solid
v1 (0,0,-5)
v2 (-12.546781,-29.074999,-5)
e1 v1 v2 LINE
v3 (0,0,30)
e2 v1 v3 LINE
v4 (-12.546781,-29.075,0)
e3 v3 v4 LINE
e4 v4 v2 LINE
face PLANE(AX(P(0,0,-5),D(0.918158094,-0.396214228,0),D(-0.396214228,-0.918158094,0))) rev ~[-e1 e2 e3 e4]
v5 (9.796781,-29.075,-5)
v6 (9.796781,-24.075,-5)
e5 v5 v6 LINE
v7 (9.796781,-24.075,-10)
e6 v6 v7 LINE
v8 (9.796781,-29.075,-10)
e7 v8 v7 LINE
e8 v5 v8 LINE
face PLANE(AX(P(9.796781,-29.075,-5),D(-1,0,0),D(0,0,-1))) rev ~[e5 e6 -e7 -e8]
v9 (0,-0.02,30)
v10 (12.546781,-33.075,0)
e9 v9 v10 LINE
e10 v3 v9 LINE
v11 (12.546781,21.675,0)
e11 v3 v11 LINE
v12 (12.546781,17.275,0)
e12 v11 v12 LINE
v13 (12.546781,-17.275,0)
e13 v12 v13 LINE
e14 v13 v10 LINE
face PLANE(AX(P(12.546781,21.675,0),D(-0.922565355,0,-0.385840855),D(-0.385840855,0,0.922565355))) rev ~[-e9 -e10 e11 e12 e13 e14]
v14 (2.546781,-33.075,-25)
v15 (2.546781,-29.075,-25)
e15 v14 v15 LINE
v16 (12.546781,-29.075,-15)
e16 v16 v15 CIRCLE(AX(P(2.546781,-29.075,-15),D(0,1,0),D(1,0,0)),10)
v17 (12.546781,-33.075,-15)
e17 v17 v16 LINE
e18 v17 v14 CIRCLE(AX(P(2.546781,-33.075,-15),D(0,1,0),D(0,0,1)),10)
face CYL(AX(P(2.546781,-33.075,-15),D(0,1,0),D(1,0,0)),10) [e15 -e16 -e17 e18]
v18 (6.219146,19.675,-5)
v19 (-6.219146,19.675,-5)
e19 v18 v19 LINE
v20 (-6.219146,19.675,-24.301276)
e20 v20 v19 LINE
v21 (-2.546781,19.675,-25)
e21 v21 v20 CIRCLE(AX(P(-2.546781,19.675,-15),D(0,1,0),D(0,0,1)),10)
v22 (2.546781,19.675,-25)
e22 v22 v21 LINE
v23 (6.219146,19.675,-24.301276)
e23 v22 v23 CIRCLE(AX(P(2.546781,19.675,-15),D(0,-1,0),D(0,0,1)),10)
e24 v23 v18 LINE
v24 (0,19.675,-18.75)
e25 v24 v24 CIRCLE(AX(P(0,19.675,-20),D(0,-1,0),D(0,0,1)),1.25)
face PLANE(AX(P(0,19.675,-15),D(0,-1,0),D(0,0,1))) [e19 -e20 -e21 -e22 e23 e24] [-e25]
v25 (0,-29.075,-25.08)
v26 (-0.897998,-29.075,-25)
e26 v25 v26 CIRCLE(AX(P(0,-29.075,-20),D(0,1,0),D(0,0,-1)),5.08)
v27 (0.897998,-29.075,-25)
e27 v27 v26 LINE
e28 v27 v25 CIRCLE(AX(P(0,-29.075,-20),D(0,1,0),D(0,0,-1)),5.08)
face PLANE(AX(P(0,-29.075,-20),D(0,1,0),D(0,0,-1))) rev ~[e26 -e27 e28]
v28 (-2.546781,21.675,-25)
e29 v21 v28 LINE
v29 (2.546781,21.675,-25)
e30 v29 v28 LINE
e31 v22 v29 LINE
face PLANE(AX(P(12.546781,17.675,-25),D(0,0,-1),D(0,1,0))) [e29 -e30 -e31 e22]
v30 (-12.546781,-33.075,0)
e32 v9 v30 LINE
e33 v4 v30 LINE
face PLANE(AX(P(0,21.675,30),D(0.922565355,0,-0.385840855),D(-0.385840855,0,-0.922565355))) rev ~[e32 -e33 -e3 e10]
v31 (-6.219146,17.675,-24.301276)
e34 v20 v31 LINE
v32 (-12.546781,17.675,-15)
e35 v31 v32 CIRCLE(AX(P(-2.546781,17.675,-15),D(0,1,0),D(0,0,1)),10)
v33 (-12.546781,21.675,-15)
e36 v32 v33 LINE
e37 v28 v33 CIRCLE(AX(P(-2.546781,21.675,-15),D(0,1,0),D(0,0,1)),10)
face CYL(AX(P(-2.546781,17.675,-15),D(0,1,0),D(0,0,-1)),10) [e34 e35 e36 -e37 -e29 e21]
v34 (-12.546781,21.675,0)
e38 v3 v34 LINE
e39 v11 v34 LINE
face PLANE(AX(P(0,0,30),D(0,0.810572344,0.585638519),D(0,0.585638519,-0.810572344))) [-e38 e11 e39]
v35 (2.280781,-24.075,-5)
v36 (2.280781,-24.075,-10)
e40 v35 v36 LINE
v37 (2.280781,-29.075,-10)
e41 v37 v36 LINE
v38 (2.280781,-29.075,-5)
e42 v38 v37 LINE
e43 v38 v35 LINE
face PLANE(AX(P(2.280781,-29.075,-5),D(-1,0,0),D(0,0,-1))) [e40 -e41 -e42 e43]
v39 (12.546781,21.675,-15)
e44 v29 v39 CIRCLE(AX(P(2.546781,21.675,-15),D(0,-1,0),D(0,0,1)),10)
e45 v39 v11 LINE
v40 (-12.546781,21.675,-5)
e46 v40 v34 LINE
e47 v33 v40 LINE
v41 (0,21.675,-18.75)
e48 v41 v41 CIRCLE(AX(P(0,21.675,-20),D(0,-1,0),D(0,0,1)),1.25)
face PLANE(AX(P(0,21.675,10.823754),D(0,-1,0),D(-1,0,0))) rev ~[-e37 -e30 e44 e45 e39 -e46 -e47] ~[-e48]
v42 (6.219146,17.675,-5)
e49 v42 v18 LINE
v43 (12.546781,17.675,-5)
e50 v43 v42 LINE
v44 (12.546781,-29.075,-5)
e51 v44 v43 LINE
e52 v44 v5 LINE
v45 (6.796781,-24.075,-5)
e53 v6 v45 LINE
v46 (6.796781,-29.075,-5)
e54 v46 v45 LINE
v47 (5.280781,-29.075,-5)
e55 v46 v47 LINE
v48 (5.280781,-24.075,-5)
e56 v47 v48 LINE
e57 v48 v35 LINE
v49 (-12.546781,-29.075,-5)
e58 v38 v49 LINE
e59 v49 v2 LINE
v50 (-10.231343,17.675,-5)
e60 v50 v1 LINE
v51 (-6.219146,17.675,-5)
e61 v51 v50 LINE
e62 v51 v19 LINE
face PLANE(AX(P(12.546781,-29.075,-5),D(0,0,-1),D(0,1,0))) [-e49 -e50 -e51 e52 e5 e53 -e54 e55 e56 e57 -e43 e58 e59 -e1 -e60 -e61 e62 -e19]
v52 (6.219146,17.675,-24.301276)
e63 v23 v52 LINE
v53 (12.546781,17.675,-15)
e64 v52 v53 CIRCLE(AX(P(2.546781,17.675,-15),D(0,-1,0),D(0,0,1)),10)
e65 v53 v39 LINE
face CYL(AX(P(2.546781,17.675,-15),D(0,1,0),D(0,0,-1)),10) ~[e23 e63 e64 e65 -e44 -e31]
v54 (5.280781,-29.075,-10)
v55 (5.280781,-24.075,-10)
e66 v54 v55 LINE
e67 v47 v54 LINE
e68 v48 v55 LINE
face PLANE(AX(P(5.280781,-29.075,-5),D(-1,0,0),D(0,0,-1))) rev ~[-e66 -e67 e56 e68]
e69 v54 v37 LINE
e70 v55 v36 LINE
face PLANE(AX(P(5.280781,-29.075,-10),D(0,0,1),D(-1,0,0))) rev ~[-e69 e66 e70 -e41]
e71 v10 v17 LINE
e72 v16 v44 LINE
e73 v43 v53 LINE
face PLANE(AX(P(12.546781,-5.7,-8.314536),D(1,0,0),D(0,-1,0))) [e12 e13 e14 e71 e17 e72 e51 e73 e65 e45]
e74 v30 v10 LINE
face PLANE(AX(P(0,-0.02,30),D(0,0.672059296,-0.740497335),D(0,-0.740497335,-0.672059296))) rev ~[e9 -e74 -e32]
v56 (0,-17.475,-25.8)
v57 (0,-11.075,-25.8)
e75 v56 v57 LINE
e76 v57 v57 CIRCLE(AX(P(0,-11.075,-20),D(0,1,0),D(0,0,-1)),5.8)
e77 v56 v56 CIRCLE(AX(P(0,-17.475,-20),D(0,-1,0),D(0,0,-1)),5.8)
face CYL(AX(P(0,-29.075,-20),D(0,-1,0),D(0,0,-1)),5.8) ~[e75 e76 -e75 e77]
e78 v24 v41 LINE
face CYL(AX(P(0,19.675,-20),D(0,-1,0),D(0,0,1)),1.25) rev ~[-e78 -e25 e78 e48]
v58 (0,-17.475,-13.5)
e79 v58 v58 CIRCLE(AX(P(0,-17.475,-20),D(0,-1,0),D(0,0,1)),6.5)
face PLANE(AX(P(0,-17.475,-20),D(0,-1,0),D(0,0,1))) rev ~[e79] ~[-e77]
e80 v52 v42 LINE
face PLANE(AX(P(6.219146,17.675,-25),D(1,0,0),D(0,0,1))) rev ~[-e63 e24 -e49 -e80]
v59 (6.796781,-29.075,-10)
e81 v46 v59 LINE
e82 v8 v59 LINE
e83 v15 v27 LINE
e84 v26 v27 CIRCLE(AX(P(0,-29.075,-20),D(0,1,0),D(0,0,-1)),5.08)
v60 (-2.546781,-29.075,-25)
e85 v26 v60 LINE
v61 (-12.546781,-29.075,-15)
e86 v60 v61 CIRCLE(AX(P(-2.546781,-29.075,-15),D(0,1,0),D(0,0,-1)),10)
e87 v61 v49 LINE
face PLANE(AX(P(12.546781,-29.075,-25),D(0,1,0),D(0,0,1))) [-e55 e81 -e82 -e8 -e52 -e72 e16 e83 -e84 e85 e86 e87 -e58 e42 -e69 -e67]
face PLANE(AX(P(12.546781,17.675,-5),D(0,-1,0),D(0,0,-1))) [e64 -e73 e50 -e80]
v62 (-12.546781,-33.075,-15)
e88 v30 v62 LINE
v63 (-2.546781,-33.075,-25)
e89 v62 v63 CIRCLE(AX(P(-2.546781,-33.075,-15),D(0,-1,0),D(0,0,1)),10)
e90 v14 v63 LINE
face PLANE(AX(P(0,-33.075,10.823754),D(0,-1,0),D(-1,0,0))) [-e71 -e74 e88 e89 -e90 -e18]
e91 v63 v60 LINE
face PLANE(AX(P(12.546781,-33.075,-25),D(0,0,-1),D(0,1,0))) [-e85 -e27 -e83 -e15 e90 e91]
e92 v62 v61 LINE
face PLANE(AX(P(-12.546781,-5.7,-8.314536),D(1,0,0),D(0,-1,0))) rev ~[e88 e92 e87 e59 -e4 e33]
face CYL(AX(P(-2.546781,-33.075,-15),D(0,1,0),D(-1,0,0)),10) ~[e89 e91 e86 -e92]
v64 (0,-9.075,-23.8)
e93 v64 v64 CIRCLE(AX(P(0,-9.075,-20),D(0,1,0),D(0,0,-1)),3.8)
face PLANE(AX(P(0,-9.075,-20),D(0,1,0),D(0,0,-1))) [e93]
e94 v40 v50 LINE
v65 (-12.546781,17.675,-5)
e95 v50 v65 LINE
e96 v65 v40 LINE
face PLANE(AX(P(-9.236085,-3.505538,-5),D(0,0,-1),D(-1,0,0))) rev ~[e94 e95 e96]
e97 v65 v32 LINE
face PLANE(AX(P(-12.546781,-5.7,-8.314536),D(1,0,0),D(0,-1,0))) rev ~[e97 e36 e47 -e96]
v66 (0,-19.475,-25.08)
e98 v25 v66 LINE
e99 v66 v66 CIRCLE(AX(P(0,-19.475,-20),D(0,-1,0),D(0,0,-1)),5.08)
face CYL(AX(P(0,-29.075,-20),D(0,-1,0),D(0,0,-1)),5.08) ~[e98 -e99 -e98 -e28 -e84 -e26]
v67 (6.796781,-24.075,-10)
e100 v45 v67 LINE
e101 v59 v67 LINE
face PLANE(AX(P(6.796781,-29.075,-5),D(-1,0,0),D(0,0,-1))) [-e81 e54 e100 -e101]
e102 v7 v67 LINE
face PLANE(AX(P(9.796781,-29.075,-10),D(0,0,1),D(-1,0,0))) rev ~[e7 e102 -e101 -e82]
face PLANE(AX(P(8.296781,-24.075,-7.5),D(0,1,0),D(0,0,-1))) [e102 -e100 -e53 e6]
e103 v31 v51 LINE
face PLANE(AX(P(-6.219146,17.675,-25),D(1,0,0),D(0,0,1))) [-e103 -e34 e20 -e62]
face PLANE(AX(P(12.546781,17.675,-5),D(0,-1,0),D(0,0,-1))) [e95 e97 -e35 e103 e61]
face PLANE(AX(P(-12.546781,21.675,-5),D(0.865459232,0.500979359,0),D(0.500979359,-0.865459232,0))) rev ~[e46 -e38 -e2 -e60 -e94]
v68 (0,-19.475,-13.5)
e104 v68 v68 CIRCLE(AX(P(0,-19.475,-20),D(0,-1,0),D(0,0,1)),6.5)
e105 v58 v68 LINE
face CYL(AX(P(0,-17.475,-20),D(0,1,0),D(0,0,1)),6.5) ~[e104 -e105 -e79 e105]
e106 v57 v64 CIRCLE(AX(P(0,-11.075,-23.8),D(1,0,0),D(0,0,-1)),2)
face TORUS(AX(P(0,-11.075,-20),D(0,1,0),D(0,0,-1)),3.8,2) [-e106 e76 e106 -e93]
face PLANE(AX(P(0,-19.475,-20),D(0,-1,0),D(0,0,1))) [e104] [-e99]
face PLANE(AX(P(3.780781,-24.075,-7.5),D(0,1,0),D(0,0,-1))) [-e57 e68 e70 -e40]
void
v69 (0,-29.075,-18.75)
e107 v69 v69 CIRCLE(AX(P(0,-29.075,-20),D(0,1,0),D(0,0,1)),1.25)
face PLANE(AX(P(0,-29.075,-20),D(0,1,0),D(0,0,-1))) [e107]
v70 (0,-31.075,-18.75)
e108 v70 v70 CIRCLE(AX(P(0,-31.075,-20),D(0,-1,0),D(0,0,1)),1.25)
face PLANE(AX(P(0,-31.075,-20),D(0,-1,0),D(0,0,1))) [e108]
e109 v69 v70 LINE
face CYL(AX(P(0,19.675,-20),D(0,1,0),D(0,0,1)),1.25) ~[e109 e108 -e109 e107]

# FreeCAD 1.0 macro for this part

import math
import FreeCAD as App
import Part
import Sketcher
from FreeCAD import Vector


def edges_at(feature, points):
    """Names of the edges that pass closest to the given points."""
    edges = feature.Shape.Edges
    near = lambda p: min(range(len(edges)), key=lambda i: edges[i].distToShape(Part.Vertex(*p))[0])
    return sorted({f"Edge{near(p) + 1}" for p in points})


def add_polygon(sketch, points):
    """Adds a closed chain of lines whose ends are joined by coincident constraints."""
    first, n = sketch.GeometryCount, len(points)
    for a, b in zip(points, points[1:] + points[:1]):
        sketch.addGeometry(Part.LineSegment(App.Vector(*a, 0), App.Vector(*b, 0)), False)
    for i in range(n):
        sketch.addConstraint(Sketcher.Constraint("Coincident", first + i, 2, first + (i + 1) % n, 1))

doc = App.newDocument("Part")
body = doc.addObject("PartDesign::Body", "Body")

# Sketch on XY plane
sketch1 = body.newObject("Sketcher::SketchObject", "Sketch")
sketch1.AttachmentSupport = (doc.getObject("XY_Plane"), [""])
sketch1.MapMode = "FlatFace"
add_polygon(sketch1, [(-6, 7), (-6, -10), (6, -10), (6, 7)])  # lines 0-3
sketch1.addConstraint([
    Sketcher.Constraint("Vertical", 0),
    Sketcher.Constraint("Horizontal", 1),
    Sketcher.Constraint("Vertical", 2),
    Sketcher.Constraint("Horizontal", 3),
    Sketcher.Constraint("DistanceX", 1, 1, 1, 2, 12.46),
    Sketcher.Constraint("DistanceY", 0, 2, 0, 1, 17.25),
    Sketcher.Constraint("DistanceX", 0, 2, -1, 1, 6.23),
    Sketcher.Constraint("DistanceY", 0, 2, -1, 1, 9.975),
])
pad1 = body.newObject("PartDesign::Pad", "Pad")
pad1.Profile = sketch1
pad1.Length = 6
body2 = doc.addObject("PartDesign::Body", "Body001")

# Sketch on XZ plane
sketch2 = body2.newObject("Sketcher::SketchObject", "Sketch001")
sketch2.AttachmentSupport = (doc.getObject("XZ_Plane001"), [""])
sketch2.MapMode = "FlatFace"
sketch2.AttachmentOffset = App.Placement(Vector(0, 0, 9.975), App.Rotation())
sketch2.addGeometry([
    Part.Circle(Vector(0, 24, 0), Vector(0, 0, 1), 13),
    Part.Circle(Vector(0, 24, 0), Vector(0, 0, 1), 11),
], False)
sketch2.addConstraint([
    Sketcher.Constraint("Coincident", 1, 3, 0, 3),
    Sketcher.Constraint("PointOnObject", 0, 3, -2),
    Sketcher.Constraint("Diameter", 1, 22.3),
    Sketcher.Constraint("DistanceY", -1, 1, 0, 3, 23.55),
    Sketcher.Constraint("Diameter", 0, 25.093562),
])
pad2 = body2.newObject("PartDesign::Pad", "Pad001")
pad2.Profile = sketch2
pad2.Type = "TwoLengths"
pad2.Length = 7.3
pad2.Length2 = 17.25
body.AllowCompound = True
doc.recompute()

boolean = body.newObject("PartDesign::Boolean", "Boolean")
boolean.Type = "Fuse"
boolean.addObjects([body2])

# Sketch on XZ plane
sketch3 = body.newObject("Sketcher::SketchObject", "Sketch002")
sketch3.AttachmentSupport = (doc.getObject("XZ_Plane"), [""])
sketch3.MapMode = "FlatFace"
sketch3.AttachmentOffset = App.Placement(Vector(0, 0, -7.275), App.Rotation())
sketch3.addGeometry([
    Part.LineSegment(Vector(13, 24, 0), Vector(13, 0, 0)),  # 0
    Part.LineSegment(Vector(13, 0, 0), Vector(6, 0, 0)),  # 1
    Part.LineSegment(Vector(6, 0, 0), Vector(6, 30, 0)),  # 2
    Part.LineSegment(Vector(6, 30, 0), Vector(-6, 30, 0)),  # 3
    Part.LineSegment(Vector(-6, 30, 0), Vector(-6, 0, 0)),  # 4
    Part.LineSegment(Vector(-6, 0, 0), Vector(-13, 0, 0)),  # 5
    Part.LineSegment(Vector(-13, 0, 0), Vector(-13, 24, 0)),  # 6
    Part.ArcOfCircle(Part.Circle(Vector(0, 24, 0), Vector(0, 0, 1), 13), math.radians(0), math.radians(180)),  # 7
], False)
sketch3.addConstraint([
    Sketcher.Constraint("Coincident", 0, 2, 1, 1),
    Sketcher.Constraint("Coincident", 1, 2, 2, 1),
    Sketcher.Constraint("Coincident", 2, 2, 3, 1),
    Sketcher.Constraint("Coincident", 3, 2, 4, 1),
    Sketcher.Constraint("Coincident", 4, 2, 5, 1),
    Sketcher.Constraint("Coincident", 5, 2, 6, 1),
    Sketcher.Constraint("Tangent", 6, 2, 7, 2),
    Sketcher.Constraint("Tangent", 7, 1, 0, 1),
    Sketcher.Constraint("Vertical", 0),
    Sketcher.Constraint("Horizontal", 1),
    Sketcher.Constraint("Vertical", 2),
    Sketcher.Constraint("Horizontal", 3),
    Sketcher.Constraint("Vertical", 4),
    Sketcher.Constraint("Horizontal", 5),
    Sketcher.Constraint("Vertical", 6),
    Sketcher.Constraint("Symmetric", 1, 2, 4, 2, -1, 1),
    Sketcher.Constraint("Symmetric", 0, 2, 5, 2, -2),
    Sketcher.Constraint("DistanceY", 2, 1, 2, 2, 29.7),
    Sketcher.Constraint("DistanceX", 3, 2, 3, 1, 12.46),
    Sketcher.Constraint("DistanceY", 0, 2, 0, 1, 23.55),
    Sketcher.Constraint("Radius", 7, 12.546781),
])
pad3 = body.newObject("PartDesign::Pad", "Pad002")
pad3.Profile = sketch3
pad3.Length = 17.25

# Sketch on XZ plane
sketch4 = body.newObject("Sketcher::SketchObject", "Sketch003")
sketch4.AttachmentSupport = (doc.getObject("XZ_Plane"), [""])
sketch4.MapMode = "FlatFace"
sketch4.AttachmentOffset = App.Placement(Vector(0, 0, -7.275), App.Rotation())
sketch4.addGeometry([
    Part.Circle(Vector(0, 3.6, 0), Vector(0, 0, 1), 0.5),
    Part.Circle(Vector(0, 32.1, 0), Vector(0, 0, 1), 0.5),
], False)
sketch4.addConstraint([
    Sketcher.Constraint("Equal", 0, 1),
    Sketcher.Constraint("PointOnObject", 0, 3, -2),
    Sketcher.Constraint("PointOnObject", 1, 3, -2),
    Sketcher.Constraint("Diameter", 0, 1.0),
    Sketcher.Constraint("DistanceY", -1, 1, 0, 3, 3.6),
    Sketcher.Constraint("DistanceY", -1, 1, 1, 3, 32.1),
])
pocket1 = body.newObject("PartDesign::Pocket", "Pocket")
pocket1.Profile = sketch4
pocket1.Length = 15
pocket1.Reversed = True
doc.recompute()

chamfer = body.newObject("PartDesign::Chamfer", "Chamfer")
chamfer.Base = (pocket1, edges_at(pocket1, [(-0.5, 7.275, 3.6), (-0.5, 7.275, 32.1)]))
chamfer.ChamferType = "Two distances"
chamfer.Size = 0.5
chamfer.Size2 = 0.866025

# Sketch on XZ plane
sketch5 = body.newObject("Sketcher::SketchObject", "Sketch004")
sketch5.AttachmentSupport = (doc.getObject("XZ_Plane"), [""])
sketch5.MapMode = "FlatFace"
sketch5.AttachmentOffset = App.Placement(Vector(0, 0, -7.275), App.Rotation())
add_polygon(sketch5, [(-6, 6), (-6, 30), (6, 30), (6, 6)])  # lines 0-3
sketch5.addConstraint([
    Sketcher.Constraint("Vertical", 0),
    Sketcher.Constraint("Horizontal", 1),
    Sketcher.Constraint("Vertical", 2),
    Sketcher.Constraint("Horizontal", 3),
    Sketcher.Constraint("DistanceY", 0, 1, 0, 2, 23.7),
    Sketcher.Constraint("DistanceY", -1, 1, 2, 2, 6.0),
    Sketcher.Constraint("DistanceX", 1, 1, 1, 2, 12.46),
    Sketcher.Constraint("DistanceX", 0, 2, -1, 1, 6.23),
])
pocket2 = body.newObject("PartDesign::Pocket", "Pocket001")
pocket2.Profile = sketch5
pocket2.Length = 17.25
pocket2.Reversed = True

# Sketch on XY plane
sketch6 = body.newObject("Sketcher::SketchObject", "Sketch005")
sketch6.AttachmentSupport = (doc.getObject("XY_Plane"), [""])
sketch6.MapMode = "FlatFace"
sketch6.AttachmentOffset = App.Placement(Vector(0, 0, 36.096781), App.Rotation())
add_polygon(sketch6, [(-2.5, -7), (-2.5, -10), (2.5, -10), (2.5, -7)])  # lines 0-3
sketch6.addConstraint([
    Sketcher.Constraint("Vertical", 0),
    Sketcher.Constraint("Horizontal", 1),
    Sketcher.Constraint("Vertical", 2),
    Sketcher.Constraint("Horizontal", 3),
    Sketcher.Constraint("DistanceX", 1, 1, 1, 2, 5.0),
    Sketcher.Constraint("DistanceY", 0, 2, 0, 1, 3.0),
    Sketcher.Constraint("DistanceX", 0, 2, -1, 1, 2.5),
    Sketcher.Constraint("DistanceY", 0, 2, -1, 1, 9.975),
])
pocket3 = body.newObject("PartDesign::Pocket", "Pocket002")
pocket3.Profile = sketch6
pocket3.Type = "UpToFirst"

# Sketch on XZ plane
sketch7 = body.newObject("Sketcher::SketchObject", "Sketch006")
sketch7.AttachmentSupport = (doc.getObject("XZ_Plane"), [""])
sketch7.MapMode = "FlatFace"
sketch7.AttachmentOffset = App.Placement(Vector(0, 0, 17.275), App.Rotation())
sketch7.addGeometry([
    Part.LineSegment(Vector(-13, 24, 0), Vector(-13, 0, 0)),
    Part.LineSegment(Vector(-13, 0, 0), Vector(13, 0, 0)),
    Part.LineSegment(Vector(13, 0, 0), Vector(13, 24, 0)),
    Part.ArcOfCircle(Part.Circle(Vector(0, 24, 0), Vector(0, 0, 1), 13), math.radians(180), math.radians(360)),
], False)
sketch7.addConstraint([
    Sketcher.Constraint("Coincident", 0, 2, 1, 1),
    Sketcher.Constraint("Coincident", 1, 2, 2, 1),
    Sketcher.Constraint("Tangent", 2, 2, 3, 2),
    Sketcher.Constraint("Tangent", 3, 1, 0, 1),
    Sketcher.Constraint("Vertical", 0),
    Sketcher.Constraint("Horizontal", 1),
    Sketcher.Constraint("Vertical", 2),
    Sketcher.Constraint("Symmetric", 0, 2, 1, 2, -1, 1),
    Sketcher.Constraint("DistanceY", 0, 2, 0, 1, 23.55),
    Sketcher.Constraint("Radius", 3, 12.546781),
])
pad4 = body.newObject("PartDesign::Pad", "Pad003")
pad4.Profile = sketch7
pad4.Length = 7.3
pad4.Reversed = True

# Sketch on XZ plane
sketch8 = body.newObject("Sketcher::SketchObject", "Sketch007")
sketch8.AttachmentSupport = (doc.getObject("XZ_Plane"), [""])
sketch8.MapMode = "FlatFace"
sketch8.AttachmentOffset = App.Placement(Vector(0, 0, -7.275), App.Rotation())
sketch8.addGeometry([
    Part.LineSegment(Vector(12.5, 0, 0), Vector(-12.5, 0, 0)),  # 0
    Part.LineSegment(Vector(-12.5, 0, 0), Vector(-12.5, 23.6, 0)),  # 1
    Part.ArcOfCircle(Part.Circle(Vector(0, 23.6, 0), Vector(0, 0, 1), 12.5), math.radians(0), math.radians(180)),  # 2
    Part.LineSegment(Vector(12.5, 23.6, 0), Vector(12.5, 0, 0)),  # 3
    Part.LineSegment(Vector(-6.2, 0.8, 0), Vector(6.2, 0.8, 0)),  # 4
    Part.LineSegment(Vector(6.2, 0.8, 0), Vector(6.2, 33.5, 0)),  # 5
    Part.ArcOfCircle(Part.Circle(Vector(5.2, 33.5, 0), Vector(0, 0, 1), 1), math.radians(0), math.radians(90)),  # 6
    Part.LineSegment(Vector(5.2, 34.5, 0), Vector(-5.2, 34.5, 0)),  # 7
    Part.ArcOfCircle(Part.Circle(Vector(-5.2, 33.5, 0), Vector(0, 0, 1), 1), math.radians(90), math.radians(180)),  # 8
    Part.LineSegment(Vector(-6.2, 33.5, 0), Vector(-6.2, 0.8, 0)),  # 9
], False)
sketch8.addConstraint([
    Sketcher.Constraint("Coincident", 0, 2, 1, 1),
    Sketcher.Constraint("Tangent", 1, 2, 2, 2),
    Sketcher.Constraint("Tangent", 2, 1, 3, 1),
    Sketcher.Constraint("Coincident", 3, 2, 0, 1),
    Sketcher.Constraint("Coincident", 4, 2, 5, 1),
    Sketcher.Constraint("Tangent", 5, 2, 6, 1),
    Sketcher.Constraint("Tangent", 6, 2, 7, 1),
    Sketcher.Constraint("Tangent", 7, 2, 8, 1),
    Sketcher.Constraint("Tangent", 8, 2, 9, 1),
    Sketcher.Constraint("Coincident", 9, 2, 4, 1),
    Sketcher.Constraint("Horizontal", 0),
    Sketcher.Constraint("Vertical", 1),
    Sketcher.Constraint("Vertical", 3),
    Sketcher.Constraint("Horizontal", 4),
    Sketcher.Constraint("Vertical", 5),
    Sketcher.Constraint("Horizontal", 7),
    Sketcher.Constraint("Vertical", 9),
    Sketcher.Constraint("Equal", 6, 8),
    Sketcher.Constraint("Symmetric", 0, 2, 3, 2, -1, 1),
    Sketcher.Constraint("Radius", 6, 1.0),
    Sketcher.Constraint("DistanceY", 5, 1, 5, 2, 32.7),
    Sketcher.Constraint("DistanceX", 4, 1, 4, 2, 12.46),
    Sketcher.Constraint("DistanceY", 1, 1, 1, 2, 23.55),
    Sketcher.Constraint("DistanceY", -1, 1, 6, 3, 33.5),
    Sketcher.Constraint("DistanceX", -1, 1, 6, 3, 5.23),
    Sketcher.Constraint("Radius", 2, 12.546781),
])
pad5 = body.newObject("PartDesign::Pad", "Pad004")
pad5.Profile = sketch8
pad5.Length = 10
pad5.Reversed = True

# Sketch on XZ plane
sketch9 = body.newObject("Sketcher::SketchObject", "Sketch008")
sketch9.AttachmentSupport = (doc.getObject("XZ_Plane"), [""])
sketch9.MapMode = "FlatFace"
sketch9.AttachmentOffset = App.Placement(Vector(0, 0, 17.275), App.Rotation())
sketch9.addGeometry([
    Part.Circle(Vector(0, 24, 0), Vector(0, 0, 1), 11),
    Part.Circle(Vector(0, 24, 0), Vector(0, 0, 1), 7),
], False)
sketch9.addConstraint([
    Sketcher.Constraint("Coincident", 1, 3, 0, 3),
    Sketcher.Constraint("PointOnObject", 0, 3, -2),
    Sketcher.Constraint("Diameter", 0, 22.3),
    Sketcher.Constraint("Diameter", 1, 14.3),
    Sketcher.Constraint("DistanceY", -1, 1, 0, 3, 23.55),
])
pad6 = body.newObject("PartDesign::Pad", "Pad005")
pad6.Profile = sketch9
pad6.Length = 7.3
pad6.Reversed = True

# Sketch on XZ plane
sketch10 = body.newObject("Sketcher::SketchObject", "Sketch009")
sketch10.AttachmentSupport = (doc.getObject("XZ_Plane"), [""])
sketch10.MapMode = "FlatFace"
sketch10.AttachmentOffset = App.Placement(Vector(0, 0, 17.275), App.Rotation())
sketch10.addGeometry([
    Part.Circle(Vector(0, 24, 0), Vector(0, 0, 1), 10),
    Part.Circle(Vector(0, 24, 0), Vector(0, 0, 1), 7),
], False)
sketch10.addConstraint([
    Sketcher.Constraint("Coincident", 1, 3, 0, 3),
    Sketcher.Constraint("PointOnObject", 0, 3, -2),
    Sketcher.Constraint("Diameter", 0, 20.3),
    Sketcher.Constraint("Diameter", 1, 14.3),
    Sketcher.Constraint("DistanceY", -1, 1, 0, 3, 23.55),
])
pocket4 = body.newObject("PartDesign::Pocket", "Pocket003")
pocket4.Profile = sketch10
pocket4.Length = 1.3

# Sketch on YZ plane
sketch11 = body.newObject("Sketcher::SketchObject", "Sketch010")
sketch11.AttachmentSupport = (doc.getObject("YZ_Plane"), [""])
sketch11.MapMode = "FlatFace"
sketch11.AttachmentOffset = App.Placement(Vector(0, 0, 12.546781), App.Rotation())
add_polygon(sketch11, [(21.7, 0), (21.7, -25), (17.7, -25), (17.7, -5), (-29.1, -5), (-29.1, -25), (-33.1, -25), (-33.1, 0)])  # lines 0-7
sketch11.addConstraint([
    Sketcher.Constraint("Vertical", 0),
    Sketcher.Constraint("Horizontal", 1),
    Sketcher.Constraint("Vertical", 2),
    Sketcher.Constraint("Horizontal", 3),
    Sketcher.Constraint("Vertical", 4),
    Sketcher.Constraint("Horizontal", 5),
    Sketcher.Constraint("Vertical", 6),
    Sketcher.Constraint("Horizontal", 7),
    Sketcher.Constraint("PointOnObject", 6, 2, -1),
    Sketcher.Constraint("Horizontal", 1, 2, 4, 2),
    Sketcher.Constraint("Equal", 1, 5),
    Sketcher.Constraint("DistanceX", 1, 2, 1, 1, 4.0),
    Sketcher.Constraint("DistanceY", 0, 2, 0, 1, 25.0),
    Sketcher.Constraint("DistanceY", 2, 1, 2, 2, 20.0),
    Sketcher.Constraint("DistanceX", 3, 2, 3, 1, 46.75),
    Sketcher.Constraint("DistanceX", -1, 1, 0, 2, 21.675),
])
pad7 = body.newObject("PartDesign::Pad", "Pad006")
pad7.Profile = sketch11
pad7.Length = 25.093562
pad7.Reversed = True

# Sketch on XZ plane
sketch12 = body.newObject("Sketcher::SketchObject", "Sketch011")
sketch12.AttachmentSupport = (doc.getObject("XZ_Plane"), [""])
sketch12.MapMode = "FlatFace"
sketch12.AttachmentOffset = App.Placement(Vector(0, 0, -17.675), App.Rotation())
add_polygon(sketch12, [(-6, -25), (6, -25), (6, -5), (-6, -5)])  # lines 0-3
sketch12.addConstraint([
    Sketcher.Constraint("Horizontal", 0),
    Sketcher.Constraint("Vertical", 1),
    Sketcher.Constraint("Horizontal", 2),
    Sketcher.Constraint("Vertical", 3),
    Sketcher.Constraint("DistanceY", 1, 1, 1, 2, 20.0),
    Sketcher.Constraint("DistanceY", 0, 2, -1, 1, 25.0),
    Sketcher.Constraint("DistanceX", 0, 1, 0, 2, 12.438293),
    Sketcher.Constraint("DistanceX", -1, 1, 0, 2, 6.219146),
])
pocket5 = body.newObject("PartDesign::Pocket", "Pocket004")
pocket5.Profile = sketch12
pocket5.Length = 2

# Sketch on XZ plane
sketch13 = body.newObject("Sketcher::SketchObject", "Sketch012")
sketch13.AttachmentSupport = (doc.getObject("XZ_Plane"), [""])
sketch13.MapMode = "FlatFace"
sketch13.AttachmentOffset = App.Placement(Vector(0, 0, -19.675), App.Rotation())
sketch13.addGeometry(Part.Circle(Vector(0, -20, 0), Vector(0, 0, 1), 1.2), False)
sketch13.addConstraint([
    Sketcher.Constraint("PointOnObject", 0, 3, -2),
    Sketcher.Constraint("Diameter", 0, 2.5),
    Sketcher.Constraint("DistanceY", 0, 3, -1, 1, 20.0),
])
pocket6 = body.newObject("PartDesign::Pocket", "Pocket005")
pocket6.Profile = sketch13
pocket6.Type = "ThroughAll"
pocket6.Midplane = True
doc.recompute()

fillet = body.newObject("PartDesign::Fillet", "Fillet")
fillet.Base = (pocket6, edges_at(pocket6, [
    (-12.547, 19.675, -25),
    (12.547, 19.675, -25),
    (12.547, -31.075, -25),
    (-12.547, -31.075, -25),
]))
fillet.Radius = 10

# Sketch on XZ plane
sketch14 = body.newObject("Sketcher::SketchObject", "Sketch013")
sketch14.AttachmentSupport = (doc.getObject("XZ_Plane"), [""])
sketch14.MapMode = "FlatFace"
sketch14.AttachmentOffset = App.Placement(Vector(0, 0, 29.075), App.Rotation())
sketch14.addGeometry(Part.Circle(Vector(0, -20, 0), Vector(0, 0, 1), 6), False)
sketch14.addConstraint([
    Sketcher.Constraint("PointOnObject", 0, 3, -2),
    Sketcher.Constraint("Diameter", 0, 11.6),
    Sketcher.Constraint("DistanceY", 0, 3, -1, 1, 20.0),
])
pad8 = body.newObject("PartDesign::Pad", "Pad007")
pad8.Profile = sketch14
pad8.Length = 20
pad8.Reversed = True
doc.recompute()

fillet2 = body.newObject("PartDesign::Fillet", "Fillet001")
fillet2.Base = (pad8, edges_at(pad8, [(0, -9.075, -14.2)]))
fillet2.Radius = 2

# Sketch on XZ plane
sketch15 = body.newObject("Sketcher::SketchObject", "Sketch014")
sketch15.AttachmentSupport = (doc.getObject("XZ_Plane"), [""])
sketch15.MapMode = "FlatFace"
sketch15.AttachmentOffset = App.Placement(Vector(0, 0, 29.075), App.Rotation())
sketch15.addGeometry([
    Part.Circle(Vector(0, -20, 0), Vector(0, 0, 1), 6),
    Part.Circle(Vector(0, -20, 0), Vector(0, 0, 1), 5),
], False)
sketch15.addConstraint([
    Sketcher.Constraint("Coincident", 1, 3, 0, 3),
    Sketcher.Constraint("PointOnObject", 0, 3, -2),
    Sketcher.Constraint("Diameter", 1, 10.16),
    Sketcher.Constraint("DistanceY", 0, 3, -1, 1, 20.0),
    Sketcher.Constraint("Diameter", 0, 11.861708),
])
pocket7 = body.newObject("PartDesign::Pocket", "Pocket006")
pocket7.Profile = sketch15
pocket7.Length = 11.6

# Sketch on XZ plane
sketch16 = body.newObject("Sketcher::SketchObject", "Sketch015")
sketch16.AttachmentSupport = (doc.getObject("XZ_Plane"), [""])
sketch16.MapMode = "FlatFace"
sketch16.AttachmentOffset = App.Placement(Vector(0, 0, 17.475), App.Rotation())
sketch16.addGeometry(Part.Circle(Vector(0, -20, 0), Vector(0, 0, 1), 6), False)
sketch16.addConstraint([
    Sketcher.Constraint("PointOnObject", 0, 3, -2),
    Sketcher.Constraint("Diameter", 0, 13.0),
    Sketcher.Constraint("DistanceY", 0, 3, -1, 1, 20.0),
])
pad9 = body.newObject("PartDesign::Pad", "Pad008")
pad9.Profile = sketch16
pad9.Length = 2

# Sketch on XZ plane
sketch17 = body.newObject("Sketcher::SketchObject", "Sketch016")
sketch17.AttachmentSupport = (doc.getObject("XZ_Plane"), [""])
sketch17.MapMode = "FlatFace"
sketch17.AttachmentOffset = App.Placement(Vector(0, 0, 33.075), App.Rotation())
sketch17.addGeometry(Part.Circle(Vector(0, -20, 0), Vector(0, 0, 1), 1.2), False)
sketch17.addConstraint([
    Sketcher.Constraint("PointOnObject", 0, 3, -2),
    Sketcher.Constraint("Diameter", 0, 2.5),
    Sketcher.Constraint("DistanceY", 0, 3, -1, 1, 20.0),
])
pad10 = body.newObject("PartDesign::Pad", "Pad009")
pad10.Profile = sketch17
pad10.Length = 2
pad10.Reversed = True

# Sketch on XZ plane
sketch18 = body.newObject("Sketcher::SketchObject", "Sketch017")
sketch18.AttachmentSupport = (doc.getObject("XZ_Plane"), [""])
sketch18.MapMode = "FlatFace"
sketch18.AttachmentOffset = App.Placement(Vector(0, 0, 29.075), App.Rotation())
add_polygon(sketch18, [(6.8, -5), (9.8, -5), (9.8, -10), (6.8, -10)])  # lines 0-3
add_polygon(sketch18, [(2.3, -5), (5.3, -5), (5.3, -10), (2.3, -10)])  # lines 4-7
sketch18.addConstraint([
    Sketcher.Constraint("Horizontal", 0),
    Sketcher.Constraint("Vertical", 1),
    Sketcher.Constraint("Horizontal", 2),
    Sketcher.Constraint("Vertical", 3),
    Sketcher.Constraint("Horizontal", 4),
    Sketcher.Constraint("Vertical", 5),
    Sketcher.Constraint("Horizontal", 6),
    Sketcher.Constraint("Vertical", 7),
    Sketcher.Constraint("Horizontal", 3, 2, 4, 2),
    Sketcher.Constraint("Horizontal", 2, 2, 5, 2),
    Sketcher.Constraint("Equal", 2, 4),
    Sketcher.Constraint("DistanceX", 0, 1, 0, 2, 3.0),
    Sketcher.Constraint("DistanceY", 1, 2, 1, 1, 5.0),
    Sketcher.Constraint("DistanceY", 0, 2, -1, 1, 5.0),
    Sketcher.Constraint("DistanceX", 4, 2, 3, 2, 1.516),
    Sketcher.Constraint("DistanceX", -1, 1, 0, 2, 9.796781),
])
pad11 = body.newObject("PartDesign::Pad", "Pad010")
pad11.Profile = sketch18
pad11.Length = 5
pad11.Reversed = True

# Sketch on XZ plane
sketch19 = body.newObject("Sketcher::SketchObject", "Sketch018")
sketch19.AttachmentSupport = (doc.getObject("XZ_Plane"), [""])
sketch19.MapMode = "FlatFace"
sketch19.AttachmentOffset = App.Placement(Vector(0, 0, -17.275), App.Rotation())
add_polygon(sketch19, [(-13, 0), (-13, 39), (15, 39), (15, 0)])  # lines 0-3
sketch19.addConstraint([
    Sketcher.Constraint("Vertical", 0),
    Sketcher.Constraint("Horizontal", 1),
    Sketcher.Constraint("Vertical", 2),
    Sketcher.Constraint("Horizontal", 3),
    Sketcher.Constraint("PointOnObject", 2, 2, -1),
    Sketcher.Constraint("DistanceY", 0, 1, 0, 2, 38.605371),
    Sketcher.Constraint("DistanceX", 1, 1, 1, 2, 27.233314),
    Sketcher.Constraint("DistanceX", 0, 2, -1, 1, 12.546781),
])
pocket8 = body.newObject("PartDesign::Pocket", "Pocket007")
pocket8.Profile = sketch19
pocket8.Type = "ThroughAll"
pocket8.Reversed = True

# Sketch on XZ plane
sketch20 = body.newObject("Sketcher::SketchObject", "Sketch019")
sketch20.AttachmentSupport = (doc.getObject("XZ_Plane"), [""])
sketch20.MapMode = "FlatFace"
sketch20.AttachmentOffset = App.Placement(Vector(0, 0, -21.675), App.Rotation())
add_polygon(sketch20, [(0, 30), (13, 0), (-13, 0)])  # lines 0-2
sketch20.addConstraint([
    Sketcher.Constraint("Horizontal", 1),
    Sketcher.Constraint("Symmetric", 0, 2, 1, 2, -1, 1),
    Sketcher.Constraint("PointOnObject", 2, 2, -2),
    Sketcher.Constraint("DistanceY", -1, 1, 2, 2, 30.0),
    Sketcher.Constraint("Distance", 0, 32.518021),
])
pad12 = body.newObject("PartDesign::Pad", "Pad011")
pad12.Profile = sketch20
pad12.Length = 54.75

# Sketch on YZ plane
sketch21 = body.newObject("Sketcher::SketchObject", "Sketch020")
sketch21.AttachmentSupport = (doc.getObject("YZ_Plane"), [""])
sketch21.MapMode = "FlatFace"
add_polygon(sketch21, [(22, 0), (22, 30), (0, 30)])  # lines 0-2
add_polygon(sketch21, [(-33, 30), (-33, 0), (0, 30)])  # lines 3-5
sketch21.addConstraint([
    Sketcher.Constraint("Vertical", 0),
    Sketcher.Constraint("Horizontal", 1),
    Sketcher.Constraint("Vertical", 3),
    Sketcher.Constraint("Horizontal", 5),
    Sketcher.Constraint("PointOnObject", 1, 2, -2),
    Sketcher.Constraint("PointOnObject", 2, 2, -1),
    Sketcher.Constraint("PointOnObject", 3, 2, -1),
    Sketcher.Constraint("Horizontal", 1, 2, 4, 2),
    Sketcher.Constraint("DistanceY", 0, 1, 0, 2, 30.0),
    Sketcher.Constraint("DistanceX", 1, 2, 1, 1, 21.675),
    Sketcher.Constraint("DistanceX", 5, 2, 5, 1, 33.055),
    Sketcher.Constraint("DistanceX", 4, 2, -1, 1, 0.02),
])
pocket9 = body.newObject("PartDesign::Pocket", "Pocket008")
pocket9.Profile = sketch21
pocket9.Type = "ThroughAll"
pocket9.Midplane = True

# Sketch on XY plane
sketch22 = body.newObject("Sketcher::SketchObject", "Sketch021")
sketch22.AttachmentSupport = (doc.getObject("XY_Plane"), [""])
sketch22.MapMode = "FlatFace"
sketch22.AttachmentOffset = App.Placement(Vector(0, 0, -5), App.Rotation())
add_polygon(sketch22, [(-13, 22), (0, 0), (-13, -29)])  # lines 0-2
sketch22.addConstraint([
    Sketcher.Constraint("Vertical", 2),
    Sketcher.Constraint("Coincident", 0, 2, -1, 1),
    Sketcher.Constraint("DistanceY", 2, 1, 2, 2, 50.75),
    Sketcher.Constraint("DistanceY", 1, 2, -1, 1, 29.075),
    Sketcher.Constraint("Distance", 1, 31.66666),
])
pocket10 = body.newObject("PartDesign::Pocket", "Pocket009")
pocket10.Profile = sketch22
pocket10.Type = "ThroughAll"
pocket10.Reversed = True

doc.recompute()
